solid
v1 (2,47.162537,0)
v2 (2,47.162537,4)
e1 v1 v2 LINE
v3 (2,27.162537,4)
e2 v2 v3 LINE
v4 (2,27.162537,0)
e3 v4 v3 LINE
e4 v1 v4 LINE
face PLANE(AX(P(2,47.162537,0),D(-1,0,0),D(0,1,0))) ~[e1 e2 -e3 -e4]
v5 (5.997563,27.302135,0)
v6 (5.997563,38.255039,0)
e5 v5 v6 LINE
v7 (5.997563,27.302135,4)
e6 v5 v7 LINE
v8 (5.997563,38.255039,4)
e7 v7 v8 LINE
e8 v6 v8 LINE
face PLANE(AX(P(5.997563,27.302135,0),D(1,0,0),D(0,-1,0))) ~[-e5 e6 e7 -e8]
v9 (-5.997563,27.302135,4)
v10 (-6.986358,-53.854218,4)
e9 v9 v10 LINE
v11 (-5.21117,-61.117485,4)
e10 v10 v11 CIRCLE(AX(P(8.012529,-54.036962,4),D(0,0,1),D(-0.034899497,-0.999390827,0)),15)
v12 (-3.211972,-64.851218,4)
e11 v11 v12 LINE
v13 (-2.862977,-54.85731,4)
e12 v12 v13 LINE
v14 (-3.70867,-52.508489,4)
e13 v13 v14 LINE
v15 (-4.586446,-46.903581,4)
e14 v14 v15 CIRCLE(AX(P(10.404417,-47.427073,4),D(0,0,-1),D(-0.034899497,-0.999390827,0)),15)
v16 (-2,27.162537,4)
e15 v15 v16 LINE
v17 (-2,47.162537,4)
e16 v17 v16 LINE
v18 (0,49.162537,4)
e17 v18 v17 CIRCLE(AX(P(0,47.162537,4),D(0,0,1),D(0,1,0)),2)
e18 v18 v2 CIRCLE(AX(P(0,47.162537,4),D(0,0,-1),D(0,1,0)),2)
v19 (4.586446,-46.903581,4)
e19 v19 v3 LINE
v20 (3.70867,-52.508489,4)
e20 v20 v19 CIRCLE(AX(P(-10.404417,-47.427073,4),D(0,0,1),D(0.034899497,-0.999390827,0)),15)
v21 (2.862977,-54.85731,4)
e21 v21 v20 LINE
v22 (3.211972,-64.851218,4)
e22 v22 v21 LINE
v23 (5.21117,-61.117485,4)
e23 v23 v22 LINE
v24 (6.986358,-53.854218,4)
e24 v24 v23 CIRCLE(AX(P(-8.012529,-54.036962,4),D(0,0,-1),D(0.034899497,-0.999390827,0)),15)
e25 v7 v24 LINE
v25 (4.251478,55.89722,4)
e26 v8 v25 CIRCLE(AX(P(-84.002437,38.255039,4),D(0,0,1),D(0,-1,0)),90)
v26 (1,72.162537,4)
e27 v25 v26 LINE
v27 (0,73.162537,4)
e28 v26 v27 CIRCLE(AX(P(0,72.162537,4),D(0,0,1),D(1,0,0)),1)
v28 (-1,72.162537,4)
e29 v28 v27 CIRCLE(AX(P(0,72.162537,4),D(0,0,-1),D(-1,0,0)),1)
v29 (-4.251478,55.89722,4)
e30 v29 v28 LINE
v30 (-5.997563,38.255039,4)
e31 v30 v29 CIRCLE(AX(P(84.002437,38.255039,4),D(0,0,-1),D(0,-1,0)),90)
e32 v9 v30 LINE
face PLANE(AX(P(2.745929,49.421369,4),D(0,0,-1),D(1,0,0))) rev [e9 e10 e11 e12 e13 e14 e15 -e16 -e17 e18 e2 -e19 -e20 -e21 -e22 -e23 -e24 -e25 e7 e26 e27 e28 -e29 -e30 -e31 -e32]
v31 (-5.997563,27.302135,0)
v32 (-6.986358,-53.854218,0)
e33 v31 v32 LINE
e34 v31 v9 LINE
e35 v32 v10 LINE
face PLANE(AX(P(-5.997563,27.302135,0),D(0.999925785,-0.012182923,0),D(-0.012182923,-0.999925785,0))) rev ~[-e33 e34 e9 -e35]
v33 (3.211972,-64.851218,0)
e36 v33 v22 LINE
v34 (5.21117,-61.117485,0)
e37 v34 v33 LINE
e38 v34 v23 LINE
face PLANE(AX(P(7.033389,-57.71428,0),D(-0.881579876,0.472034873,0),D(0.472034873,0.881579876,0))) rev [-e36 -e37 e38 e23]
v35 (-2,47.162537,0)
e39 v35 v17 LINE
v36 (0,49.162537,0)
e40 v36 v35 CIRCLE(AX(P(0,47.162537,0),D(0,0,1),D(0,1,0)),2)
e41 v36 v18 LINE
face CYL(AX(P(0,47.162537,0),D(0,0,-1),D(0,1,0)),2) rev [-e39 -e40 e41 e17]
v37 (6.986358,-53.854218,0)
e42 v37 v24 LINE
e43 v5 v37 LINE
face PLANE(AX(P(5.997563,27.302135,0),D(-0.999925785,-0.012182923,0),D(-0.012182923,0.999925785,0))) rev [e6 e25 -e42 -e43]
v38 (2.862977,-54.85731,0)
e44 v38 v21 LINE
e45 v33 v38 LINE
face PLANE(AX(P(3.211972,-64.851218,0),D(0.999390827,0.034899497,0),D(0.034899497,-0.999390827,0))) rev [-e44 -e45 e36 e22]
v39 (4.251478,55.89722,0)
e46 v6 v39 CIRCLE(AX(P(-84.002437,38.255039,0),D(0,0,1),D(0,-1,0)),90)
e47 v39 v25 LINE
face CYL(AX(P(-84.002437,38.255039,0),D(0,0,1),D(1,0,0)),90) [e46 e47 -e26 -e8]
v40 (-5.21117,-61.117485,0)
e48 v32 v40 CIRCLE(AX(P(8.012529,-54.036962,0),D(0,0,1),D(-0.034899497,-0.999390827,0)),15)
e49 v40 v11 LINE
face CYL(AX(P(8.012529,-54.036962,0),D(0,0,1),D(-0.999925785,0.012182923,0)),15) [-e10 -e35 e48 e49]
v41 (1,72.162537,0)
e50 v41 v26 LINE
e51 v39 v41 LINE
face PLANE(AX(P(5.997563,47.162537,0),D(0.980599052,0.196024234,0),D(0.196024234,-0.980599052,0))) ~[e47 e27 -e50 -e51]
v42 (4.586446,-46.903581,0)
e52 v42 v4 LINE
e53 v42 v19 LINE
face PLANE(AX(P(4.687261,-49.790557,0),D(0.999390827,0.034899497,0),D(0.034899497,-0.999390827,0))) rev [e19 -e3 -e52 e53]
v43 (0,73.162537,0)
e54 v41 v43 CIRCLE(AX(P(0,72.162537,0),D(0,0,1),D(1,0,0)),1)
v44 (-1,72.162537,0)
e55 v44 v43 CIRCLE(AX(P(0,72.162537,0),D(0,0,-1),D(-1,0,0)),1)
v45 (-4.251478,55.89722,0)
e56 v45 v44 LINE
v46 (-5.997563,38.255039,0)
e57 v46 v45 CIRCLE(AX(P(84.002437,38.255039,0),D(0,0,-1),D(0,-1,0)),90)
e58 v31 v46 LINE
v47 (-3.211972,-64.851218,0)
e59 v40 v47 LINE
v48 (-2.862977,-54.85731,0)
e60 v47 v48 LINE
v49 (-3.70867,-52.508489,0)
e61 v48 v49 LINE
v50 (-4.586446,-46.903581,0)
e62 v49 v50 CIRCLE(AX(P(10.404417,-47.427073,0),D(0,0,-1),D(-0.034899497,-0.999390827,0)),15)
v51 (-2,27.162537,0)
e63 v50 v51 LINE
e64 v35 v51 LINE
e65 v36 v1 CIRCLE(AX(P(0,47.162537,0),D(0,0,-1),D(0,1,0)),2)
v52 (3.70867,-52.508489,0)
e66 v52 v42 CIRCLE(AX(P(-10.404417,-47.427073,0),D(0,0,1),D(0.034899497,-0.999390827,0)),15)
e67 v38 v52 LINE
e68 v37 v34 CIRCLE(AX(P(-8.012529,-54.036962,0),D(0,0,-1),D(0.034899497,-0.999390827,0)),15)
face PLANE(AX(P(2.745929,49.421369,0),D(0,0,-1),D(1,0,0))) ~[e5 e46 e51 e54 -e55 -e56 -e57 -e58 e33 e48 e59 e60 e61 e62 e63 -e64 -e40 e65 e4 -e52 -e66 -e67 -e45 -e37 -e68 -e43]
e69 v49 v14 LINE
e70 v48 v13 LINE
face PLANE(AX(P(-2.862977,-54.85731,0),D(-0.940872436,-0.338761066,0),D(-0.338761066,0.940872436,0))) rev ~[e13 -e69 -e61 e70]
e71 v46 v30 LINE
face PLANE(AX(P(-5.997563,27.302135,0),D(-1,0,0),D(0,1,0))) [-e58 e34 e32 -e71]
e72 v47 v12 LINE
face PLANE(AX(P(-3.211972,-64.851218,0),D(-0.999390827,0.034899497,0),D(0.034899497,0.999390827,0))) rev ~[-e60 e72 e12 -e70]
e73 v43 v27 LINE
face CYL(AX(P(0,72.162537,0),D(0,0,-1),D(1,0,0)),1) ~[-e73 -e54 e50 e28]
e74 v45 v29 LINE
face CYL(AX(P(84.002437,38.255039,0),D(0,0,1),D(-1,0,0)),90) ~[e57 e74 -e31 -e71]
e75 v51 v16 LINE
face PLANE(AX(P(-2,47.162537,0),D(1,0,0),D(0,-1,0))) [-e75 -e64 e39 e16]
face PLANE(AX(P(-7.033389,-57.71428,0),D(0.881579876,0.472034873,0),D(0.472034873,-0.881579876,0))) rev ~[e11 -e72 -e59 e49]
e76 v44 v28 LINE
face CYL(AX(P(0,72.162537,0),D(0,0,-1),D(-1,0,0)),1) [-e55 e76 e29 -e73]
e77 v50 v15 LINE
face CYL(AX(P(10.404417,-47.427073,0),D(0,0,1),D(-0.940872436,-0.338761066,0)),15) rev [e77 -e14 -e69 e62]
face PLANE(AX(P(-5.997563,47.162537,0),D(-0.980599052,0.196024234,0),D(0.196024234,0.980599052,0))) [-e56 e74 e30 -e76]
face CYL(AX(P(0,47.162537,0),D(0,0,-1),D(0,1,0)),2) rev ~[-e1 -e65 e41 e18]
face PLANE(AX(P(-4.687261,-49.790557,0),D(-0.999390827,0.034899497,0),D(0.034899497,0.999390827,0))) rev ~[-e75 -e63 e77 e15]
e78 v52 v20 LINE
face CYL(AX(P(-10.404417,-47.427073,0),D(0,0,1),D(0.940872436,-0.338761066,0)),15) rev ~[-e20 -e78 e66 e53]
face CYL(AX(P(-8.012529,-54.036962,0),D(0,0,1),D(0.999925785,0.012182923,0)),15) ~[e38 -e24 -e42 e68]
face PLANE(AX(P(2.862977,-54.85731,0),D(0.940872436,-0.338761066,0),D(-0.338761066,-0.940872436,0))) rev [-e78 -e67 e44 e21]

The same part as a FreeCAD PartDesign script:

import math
import FreeCAD as App
import Part
import Sketcher
Q = App.Units.Quantity


def edges_at(feature, points):
    """Names of the edges that pass closest to the given points."""
    edges = feature.Shape.Edges
    near = lambda p: min(range(len(edges)), key=lambda i: edges[i].distToShape(Part.Vertex(*p))[0])
    return sorted({f"Edge{near(p) + 1}" for p in points})


def add_polygon(sketch, points):
    """Adds a closed chain of lines whose ends are joined by coincident constraints."""
    first, n = sketch.GeometryCount, len(points)
    for a, b in zip(points, points[1:] + points[:1]):
        sketch.addGeometry(Part.LineSegment(App.Vector(*a, 0), App.Vector(*b, 0)), False)
    for i in range(n):
        sketch.addConstraint(Sketcher.Constraint("Coincident", first + i, 2, first + (i + 1) % n, 1))

doc = App.newDocument("Part")
body = doc.addObject("PartDesign::Body", "Body")

sketch1 = body.newObject("Sketcher::SketchObject", "Sketch")
sketch1.AttachmentSupport = (doc.getObject("XY_Plane"), [""])
sketch1.MapMode = "FlatFace"
add_polygon(sketch1, [(0, -64.8), (0, -54.8), (-2, -49.8), (-2, 27.2), (-6, 27.2), (-4.1, -57.8)])
sketch1.addConstraint(Sketcher.Constraint("Vertical", 0))
sketch1.addConstraint(Sketcher.Constraint("Vertical", 2))
sketch1.addConstraint(Sketcher.Constraint("Horizontal", 3))
sketch1.addConstraint(Sketcher.Constraint("PointOnObject", 0, 2, -2))
sketch1.addConstraint(Sketcher.Constraint("DistanceX", 3, 2, 3, 1, Q("4 mm")))
sketch1.addConstraint(Sketcher.Constraint("DistanceY", 0, 1, 0, 2, Q("10 mm")))
sketch1.addConstraint(Sketcher.Constraint("DistanceY", 2, 1, 2, 2, Q("77 mm")))
sketch1.addConstraint(Sketcher.Constraint("DistanceX", 1, 2, -1, 1, Q("2 mm")))
sketch1.addConstraint(Sketcher.Constraint("DistanceY", 0, 2, 1, 2, Q("5 mm")))
sketch1.addConstraint(Sketcher.Constraint("Distance", 4, Q("85.022724 mm")))
sketch1.addConstraint(Sketcher.Constraint("Distance", 5, Q("8.095623 mm")))
sketch1.addConstraint(Sketcher.Constraint("DistanceY", 0, 2, -1, 1, Q("54.837463 mm")))
pad1 = body.newObject("PartDesign::Pad", "Pad")
pad1.Profile = sketch1
pad1.Length = 4
doc.recompute()

fillet = body.newObject("PartDesign::Fillet", "Fillet")
fillet.Base = (pad1, edges_at(pad1, [(-4.068, -57.838, 2), (-2, -49.837, 2)]))
fillet.Radius = 15
body2 = doc.addObject("PartDesign::Body", "Body001")
doc.recompute()

body.Placement = App.Placement(App.Vector(-0.949177, -0.053252, 0), App.Rotation(App.Vector(0, 0, -1), 2))
boolean = body2.newObject("PartDesign::Boolean", "Boolean")
boolean.Type = "Fuse"
boolean.addObjects([body])

sketch2 = body2.newObject("Sketcher::SketchObject", "Sketch001")
sketch2.AttachmentSupport = (doc.getObject("XY_Plane001"), [""])
sketch2.MapMode = "FlatFace"
sketch2.addGeometry(Part.LineSegment(App.Vector(-2, 47.2, 0), App.Vector(-2, 27.2, 0)), False)
sketch2.addGeometry(Part.LineSegment(App.Vector(-2, 27.2, 0), App.Vector(-6, 27.3, 0)), False)
sketch2.addGeometry(Part.LineSegment(App.Vector(-6, 27.3, 0), App.Vector(-6, 47.2, 0)), False)
sketch2.addGeometry(Part.LineSegment(App.Vector(-6, 47.2, 0), App.Vector(-1, 72.2, 0)), False)
sketch2.addGeometry(Part.ArcOfCircle(Part.Circle(App.Vector(0, 72.2, 0), App.Vector(0, 0, 1), 1), math.radians(90), math.radians(180)), False)
sketch2.addGeometry(Part.LineSegment(App.Vector(0, 73.2, 0), App.Vector(0, 49.2, 0)), False)
sketch2.addGeometry(Part.ArcOfCircle(Part.Circle(App.Vector(0, 47.2, 0), App.Vector(0, 0, 1), 2), math.radians(90), math.radians(180)), False)
sketch2.addConstraint(Sketcher.Constraint("Coincident", 0, 2, 1, 1))
sketch2.addConstraint(Sketcher.Constraint("Coincident", 1, 2, 2, 1))
sketch2.addConstraint(Sketcher.Constraint("Coincident", 2, 2, 3, 1))
sketch2.addConstraint(Sketcher.Constraint("Coincident", 3, 2, 4, 2))
sketch2.addConstraint(Sketcher.Constraint("Coincident", 4, 1, 5, 1))
sketch2.addConstraint(Sketcher.Constraint("Coincident", 5, 2, 6, 1))
sketch2.addConstraint(Sketcher.Constraint("Tangent", 6, 2, 0, 1))
sketch2.addConstraint(Sketcher.Constraint("Vertical", 0))
sketch2.addConstraint(Sketcher.Constraint("Vertical", 2))
sketch2.addConstraint(Sketcher.Constraint("Vertical", 5))
sketch2.addConstraint(Sketcher.Constraint("PointOnObject", 4, 3, -2))
sketch2.addConstraint(Sketcher.Constraint("PointOnObject", 6, 3, -2))
sketch2.addConstraint(Sketcher.Constraint("PointOnObject", 4, 1, -2))
sketch2.addConstraint(Sketcher.Constraint("Horizontal", 6, 3, 2, 2))
sketch2.addConstraint(Sketcher.Constraint("Horizontal", 4, 3, 3, 2))
sketch2.addConstraint(Sketcher.Constraint("Radius", 4, Q("1 mm")))
sketch2.addConstraint(Sketcher.Constraint("Radius", 6, Q("2 mm")))
sketch2.addConstraint(Sketcher.Constraint("DistanceY", 0, 2, 0, 1, Q("20 mm")))
sketch2.addConstraint(Sketcher.Constraint("DistanceY", 5, 2, 5, 1, Q("24 mm")))
sketch2.addConstraint(Sketcher.Constraint("Angle", 1, Q("178 deg")))
sketch2.addConstraint(Sketcher.Constraint("Distance", 1, Q("4 mm")))
sketch2.addConstraint(Sketcher.Constraint("DistanceY", -1, 1, 4, 3, Q("72.162537 mm")))
pad2 = body2.newObject("PartDesign::Pad", "Pad001")
pad2.Profile = sketch2
pad2.Length = 4
body3 = doc.addObject("PartDesign::Body", "Body002")
doc.recompute()

body3.BaseFeature = body2
doc.recompute()

mirroring = doc.addObject("Part::Mirroring", "Mirroring")
mirroring.Source = body2
mirroring.Base = App.Vector(0, 0, 0)
mirroring.Normal = App.Vector(1, 0, 0)
body4 = doc.addObject("PartDesign::Body", "Body003")
body4.BaseFeature = mirroring
boolean2 = body3.newObject("PartDesign::Boolean", "Boolean001")
boolean2.Type = "Fuse"
boolean2.addObjects([body4])
doc.recompute()

fillet2 = body3.newObject("PartDesign::Fillet", "Fillet001")
fillet2.Base = (boolean2, edges_at(boolean2, [(-5.998, 47.163, 2), (5.998, 47.163, 2)]))
fillet2.Radius = 90
mirroring.Visibility = False

doc.recompute()
